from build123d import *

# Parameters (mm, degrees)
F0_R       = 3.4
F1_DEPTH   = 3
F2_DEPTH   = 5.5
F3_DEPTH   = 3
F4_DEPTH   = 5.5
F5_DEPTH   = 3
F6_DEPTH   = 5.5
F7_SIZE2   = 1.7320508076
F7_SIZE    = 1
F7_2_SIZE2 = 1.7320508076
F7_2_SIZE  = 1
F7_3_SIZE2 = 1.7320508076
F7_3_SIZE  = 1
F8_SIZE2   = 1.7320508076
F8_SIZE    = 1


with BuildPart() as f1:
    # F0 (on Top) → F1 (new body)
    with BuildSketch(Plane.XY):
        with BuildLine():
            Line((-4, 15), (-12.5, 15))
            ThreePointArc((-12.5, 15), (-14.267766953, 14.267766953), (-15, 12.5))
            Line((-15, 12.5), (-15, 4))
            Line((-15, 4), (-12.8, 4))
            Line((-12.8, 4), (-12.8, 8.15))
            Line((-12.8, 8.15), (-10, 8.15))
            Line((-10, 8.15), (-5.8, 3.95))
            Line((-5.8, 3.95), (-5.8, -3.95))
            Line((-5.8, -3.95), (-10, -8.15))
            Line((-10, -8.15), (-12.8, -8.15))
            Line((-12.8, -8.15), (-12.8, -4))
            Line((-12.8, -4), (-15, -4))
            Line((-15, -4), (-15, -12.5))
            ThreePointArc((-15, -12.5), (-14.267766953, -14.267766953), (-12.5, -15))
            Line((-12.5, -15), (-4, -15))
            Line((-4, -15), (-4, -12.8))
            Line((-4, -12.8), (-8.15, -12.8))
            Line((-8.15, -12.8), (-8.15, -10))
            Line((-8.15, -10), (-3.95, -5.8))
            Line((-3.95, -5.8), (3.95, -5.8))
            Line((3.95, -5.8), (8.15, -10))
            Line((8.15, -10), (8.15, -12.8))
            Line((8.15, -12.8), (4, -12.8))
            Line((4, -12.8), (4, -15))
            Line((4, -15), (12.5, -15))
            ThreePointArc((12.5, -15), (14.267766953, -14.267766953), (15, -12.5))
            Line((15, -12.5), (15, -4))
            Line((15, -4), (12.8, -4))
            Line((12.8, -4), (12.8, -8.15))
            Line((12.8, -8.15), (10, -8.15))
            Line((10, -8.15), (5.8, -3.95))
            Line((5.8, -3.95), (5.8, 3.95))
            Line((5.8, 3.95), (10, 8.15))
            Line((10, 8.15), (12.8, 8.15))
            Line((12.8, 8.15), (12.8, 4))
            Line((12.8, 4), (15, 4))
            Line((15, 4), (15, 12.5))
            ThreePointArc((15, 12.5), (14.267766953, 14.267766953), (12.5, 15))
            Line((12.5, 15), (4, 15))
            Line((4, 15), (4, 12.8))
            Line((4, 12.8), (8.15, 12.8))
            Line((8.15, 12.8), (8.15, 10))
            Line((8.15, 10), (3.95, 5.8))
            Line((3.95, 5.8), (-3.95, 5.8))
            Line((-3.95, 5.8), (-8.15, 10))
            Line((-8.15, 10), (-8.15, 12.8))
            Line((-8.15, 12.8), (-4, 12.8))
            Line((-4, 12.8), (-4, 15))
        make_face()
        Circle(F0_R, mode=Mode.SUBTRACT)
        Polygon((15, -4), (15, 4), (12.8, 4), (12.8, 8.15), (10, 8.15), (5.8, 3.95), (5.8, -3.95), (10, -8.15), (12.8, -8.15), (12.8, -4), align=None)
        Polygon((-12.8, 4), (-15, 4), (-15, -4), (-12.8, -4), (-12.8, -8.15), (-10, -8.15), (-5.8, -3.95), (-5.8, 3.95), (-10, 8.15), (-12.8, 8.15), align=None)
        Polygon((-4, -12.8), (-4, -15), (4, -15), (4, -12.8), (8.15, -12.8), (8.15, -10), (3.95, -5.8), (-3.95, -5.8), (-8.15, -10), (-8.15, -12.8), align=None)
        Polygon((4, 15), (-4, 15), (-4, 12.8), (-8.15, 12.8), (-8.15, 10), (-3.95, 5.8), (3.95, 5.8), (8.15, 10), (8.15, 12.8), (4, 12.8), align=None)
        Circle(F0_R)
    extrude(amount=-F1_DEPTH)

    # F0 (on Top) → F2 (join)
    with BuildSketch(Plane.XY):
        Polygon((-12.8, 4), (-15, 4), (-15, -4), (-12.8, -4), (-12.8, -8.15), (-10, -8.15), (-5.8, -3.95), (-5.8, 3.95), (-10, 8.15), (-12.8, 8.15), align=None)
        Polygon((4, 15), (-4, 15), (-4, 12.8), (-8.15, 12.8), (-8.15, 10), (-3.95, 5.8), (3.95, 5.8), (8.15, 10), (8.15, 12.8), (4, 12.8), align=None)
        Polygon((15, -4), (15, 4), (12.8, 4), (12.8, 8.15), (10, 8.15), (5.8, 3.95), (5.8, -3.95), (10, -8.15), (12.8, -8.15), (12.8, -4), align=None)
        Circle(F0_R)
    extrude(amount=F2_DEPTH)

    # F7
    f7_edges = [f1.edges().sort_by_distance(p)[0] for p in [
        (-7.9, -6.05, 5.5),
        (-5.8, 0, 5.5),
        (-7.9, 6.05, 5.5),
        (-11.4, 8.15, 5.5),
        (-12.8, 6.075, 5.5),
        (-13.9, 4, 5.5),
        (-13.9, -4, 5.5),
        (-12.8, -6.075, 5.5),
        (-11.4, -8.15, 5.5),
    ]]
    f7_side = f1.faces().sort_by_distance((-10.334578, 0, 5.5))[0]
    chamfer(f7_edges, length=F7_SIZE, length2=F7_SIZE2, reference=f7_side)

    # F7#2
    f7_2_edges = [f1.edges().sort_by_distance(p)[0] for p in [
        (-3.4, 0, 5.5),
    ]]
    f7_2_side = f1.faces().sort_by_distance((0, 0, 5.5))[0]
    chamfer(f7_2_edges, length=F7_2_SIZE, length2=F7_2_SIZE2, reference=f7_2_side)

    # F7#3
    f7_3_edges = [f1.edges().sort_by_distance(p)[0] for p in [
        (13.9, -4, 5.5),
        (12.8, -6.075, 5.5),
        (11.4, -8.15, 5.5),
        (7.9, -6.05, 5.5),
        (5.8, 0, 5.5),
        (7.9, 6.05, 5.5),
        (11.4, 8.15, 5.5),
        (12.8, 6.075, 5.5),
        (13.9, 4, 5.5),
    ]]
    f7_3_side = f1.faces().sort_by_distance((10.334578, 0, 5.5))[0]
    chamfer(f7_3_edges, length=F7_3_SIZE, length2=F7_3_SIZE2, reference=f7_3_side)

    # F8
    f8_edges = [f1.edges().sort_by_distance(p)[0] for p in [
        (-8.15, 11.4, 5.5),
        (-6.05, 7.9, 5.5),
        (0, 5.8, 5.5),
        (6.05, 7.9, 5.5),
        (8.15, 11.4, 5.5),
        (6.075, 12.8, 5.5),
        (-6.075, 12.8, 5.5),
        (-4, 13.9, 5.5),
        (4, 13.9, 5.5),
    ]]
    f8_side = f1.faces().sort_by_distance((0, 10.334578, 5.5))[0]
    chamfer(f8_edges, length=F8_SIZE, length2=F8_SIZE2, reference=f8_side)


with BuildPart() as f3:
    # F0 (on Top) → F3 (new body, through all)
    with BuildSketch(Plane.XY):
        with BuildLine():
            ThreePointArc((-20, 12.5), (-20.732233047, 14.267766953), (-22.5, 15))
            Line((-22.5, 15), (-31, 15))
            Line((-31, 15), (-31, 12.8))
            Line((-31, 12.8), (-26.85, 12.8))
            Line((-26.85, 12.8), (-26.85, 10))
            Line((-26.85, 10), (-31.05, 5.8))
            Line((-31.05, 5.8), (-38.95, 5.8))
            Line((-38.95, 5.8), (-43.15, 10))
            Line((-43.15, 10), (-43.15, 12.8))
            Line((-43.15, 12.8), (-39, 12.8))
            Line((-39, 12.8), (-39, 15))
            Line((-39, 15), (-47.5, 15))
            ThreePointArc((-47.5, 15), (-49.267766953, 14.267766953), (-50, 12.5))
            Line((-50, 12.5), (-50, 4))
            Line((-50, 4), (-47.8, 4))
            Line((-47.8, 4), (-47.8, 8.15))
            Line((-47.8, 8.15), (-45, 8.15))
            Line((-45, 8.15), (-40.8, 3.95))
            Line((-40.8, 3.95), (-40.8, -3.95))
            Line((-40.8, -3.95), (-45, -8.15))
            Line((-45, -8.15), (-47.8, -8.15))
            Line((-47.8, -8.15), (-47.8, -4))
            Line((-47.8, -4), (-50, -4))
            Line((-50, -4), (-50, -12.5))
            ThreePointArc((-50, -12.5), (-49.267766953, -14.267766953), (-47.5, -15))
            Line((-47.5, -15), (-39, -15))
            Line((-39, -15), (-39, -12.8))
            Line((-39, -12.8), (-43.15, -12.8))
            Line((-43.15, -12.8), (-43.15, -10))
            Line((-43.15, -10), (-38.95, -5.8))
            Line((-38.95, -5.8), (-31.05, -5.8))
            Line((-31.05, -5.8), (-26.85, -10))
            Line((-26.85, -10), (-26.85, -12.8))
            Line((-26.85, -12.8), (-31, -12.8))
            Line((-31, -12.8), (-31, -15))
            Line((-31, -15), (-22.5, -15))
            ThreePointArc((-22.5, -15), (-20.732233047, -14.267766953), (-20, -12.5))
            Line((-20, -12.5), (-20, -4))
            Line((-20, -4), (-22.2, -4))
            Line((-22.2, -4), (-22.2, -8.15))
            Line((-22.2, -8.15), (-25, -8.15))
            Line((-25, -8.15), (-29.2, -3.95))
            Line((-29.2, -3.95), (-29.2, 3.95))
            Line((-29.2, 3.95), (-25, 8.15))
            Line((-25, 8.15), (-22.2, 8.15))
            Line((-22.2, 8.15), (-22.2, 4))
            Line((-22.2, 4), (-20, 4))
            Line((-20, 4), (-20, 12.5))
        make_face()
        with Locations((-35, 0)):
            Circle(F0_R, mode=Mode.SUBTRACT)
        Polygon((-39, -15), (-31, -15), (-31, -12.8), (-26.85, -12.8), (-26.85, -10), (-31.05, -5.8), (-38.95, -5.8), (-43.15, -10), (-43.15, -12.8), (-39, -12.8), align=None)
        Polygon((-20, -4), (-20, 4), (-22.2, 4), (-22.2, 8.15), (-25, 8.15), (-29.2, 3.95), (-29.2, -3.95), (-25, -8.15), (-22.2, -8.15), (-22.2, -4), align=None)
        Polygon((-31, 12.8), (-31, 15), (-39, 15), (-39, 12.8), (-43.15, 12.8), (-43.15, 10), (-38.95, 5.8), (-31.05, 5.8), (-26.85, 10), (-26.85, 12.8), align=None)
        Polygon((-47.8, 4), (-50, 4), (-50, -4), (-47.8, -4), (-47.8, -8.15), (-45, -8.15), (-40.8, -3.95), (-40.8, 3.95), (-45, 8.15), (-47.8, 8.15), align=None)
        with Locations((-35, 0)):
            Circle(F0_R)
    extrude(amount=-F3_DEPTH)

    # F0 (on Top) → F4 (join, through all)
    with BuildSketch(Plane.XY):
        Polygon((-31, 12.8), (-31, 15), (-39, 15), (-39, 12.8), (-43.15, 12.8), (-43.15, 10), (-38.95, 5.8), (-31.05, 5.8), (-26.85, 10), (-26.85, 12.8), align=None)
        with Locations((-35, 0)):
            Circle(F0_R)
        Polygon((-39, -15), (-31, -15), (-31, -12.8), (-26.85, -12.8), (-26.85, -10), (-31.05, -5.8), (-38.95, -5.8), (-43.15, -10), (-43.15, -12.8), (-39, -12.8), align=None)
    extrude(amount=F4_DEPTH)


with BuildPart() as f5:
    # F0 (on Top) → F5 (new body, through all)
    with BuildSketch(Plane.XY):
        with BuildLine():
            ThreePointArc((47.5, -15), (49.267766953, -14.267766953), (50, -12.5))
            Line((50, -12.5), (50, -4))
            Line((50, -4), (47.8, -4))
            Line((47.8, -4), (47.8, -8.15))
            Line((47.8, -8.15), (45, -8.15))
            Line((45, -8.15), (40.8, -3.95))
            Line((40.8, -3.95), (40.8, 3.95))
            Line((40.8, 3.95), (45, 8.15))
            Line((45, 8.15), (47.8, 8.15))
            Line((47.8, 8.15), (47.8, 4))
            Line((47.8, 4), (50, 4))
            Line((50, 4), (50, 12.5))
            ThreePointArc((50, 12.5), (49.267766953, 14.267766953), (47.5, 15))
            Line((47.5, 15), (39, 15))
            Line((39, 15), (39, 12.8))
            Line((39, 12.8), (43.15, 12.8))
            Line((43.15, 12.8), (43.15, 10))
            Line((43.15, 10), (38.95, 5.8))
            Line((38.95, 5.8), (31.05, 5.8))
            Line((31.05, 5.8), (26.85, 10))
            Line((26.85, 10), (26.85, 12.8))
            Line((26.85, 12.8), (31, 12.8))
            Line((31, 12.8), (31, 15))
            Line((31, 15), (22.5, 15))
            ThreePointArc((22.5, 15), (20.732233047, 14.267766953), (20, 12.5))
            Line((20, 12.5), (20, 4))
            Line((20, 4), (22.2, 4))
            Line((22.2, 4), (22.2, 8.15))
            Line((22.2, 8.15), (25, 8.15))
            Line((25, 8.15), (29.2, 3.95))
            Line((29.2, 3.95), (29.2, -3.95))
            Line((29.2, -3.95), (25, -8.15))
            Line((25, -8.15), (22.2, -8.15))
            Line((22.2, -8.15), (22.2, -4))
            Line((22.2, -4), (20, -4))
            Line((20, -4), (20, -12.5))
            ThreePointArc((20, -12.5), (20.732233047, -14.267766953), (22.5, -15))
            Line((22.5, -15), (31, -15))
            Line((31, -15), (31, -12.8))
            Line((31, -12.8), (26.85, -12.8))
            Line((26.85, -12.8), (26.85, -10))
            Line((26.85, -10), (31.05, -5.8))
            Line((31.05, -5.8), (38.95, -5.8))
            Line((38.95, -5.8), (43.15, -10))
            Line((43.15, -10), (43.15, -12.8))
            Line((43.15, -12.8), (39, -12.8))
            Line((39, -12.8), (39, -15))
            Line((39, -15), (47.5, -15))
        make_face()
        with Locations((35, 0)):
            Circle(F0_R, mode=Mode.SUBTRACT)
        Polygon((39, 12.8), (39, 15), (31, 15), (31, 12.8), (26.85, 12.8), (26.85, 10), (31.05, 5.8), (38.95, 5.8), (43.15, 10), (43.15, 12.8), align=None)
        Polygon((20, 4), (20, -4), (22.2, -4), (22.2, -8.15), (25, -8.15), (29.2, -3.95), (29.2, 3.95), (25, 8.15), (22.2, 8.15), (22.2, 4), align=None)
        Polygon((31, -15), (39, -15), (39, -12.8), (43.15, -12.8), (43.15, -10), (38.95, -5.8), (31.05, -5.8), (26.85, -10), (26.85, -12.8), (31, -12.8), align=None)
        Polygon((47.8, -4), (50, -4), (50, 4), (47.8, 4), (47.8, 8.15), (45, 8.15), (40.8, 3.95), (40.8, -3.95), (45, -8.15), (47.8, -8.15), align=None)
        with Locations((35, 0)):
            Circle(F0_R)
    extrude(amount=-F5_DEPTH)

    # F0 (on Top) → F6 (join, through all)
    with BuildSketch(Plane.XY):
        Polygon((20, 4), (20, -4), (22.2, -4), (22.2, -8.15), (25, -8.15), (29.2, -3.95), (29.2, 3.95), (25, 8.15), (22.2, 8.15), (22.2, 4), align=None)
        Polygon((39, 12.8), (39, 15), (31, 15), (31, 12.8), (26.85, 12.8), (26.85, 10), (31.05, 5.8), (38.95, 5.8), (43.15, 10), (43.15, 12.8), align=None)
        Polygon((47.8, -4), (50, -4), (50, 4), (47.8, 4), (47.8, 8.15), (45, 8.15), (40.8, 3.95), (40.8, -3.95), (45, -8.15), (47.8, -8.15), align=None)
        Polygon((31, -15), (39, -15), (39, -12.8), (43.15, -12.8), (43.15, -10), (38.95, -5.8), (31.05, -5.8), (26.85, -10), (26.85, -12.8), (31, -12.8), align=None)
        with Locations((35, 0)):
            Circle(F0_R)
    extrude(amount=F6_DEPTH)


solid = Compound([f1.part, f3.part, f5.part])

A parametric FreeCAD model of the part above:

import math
import FreeCAD as App
import Part
import Sketcher
Q = App.Units.Quantity


def edges_at(feature, points):
    """Names of the edges that pass closest to the given points."""
    edges = feature.Shape.Edges
    near = lambda p: min(range(len(edges)), key=lambda i: edges[i].distToShape(Part.Vertex(*p))[0])
    return sorted({f"Edge{near(p) + 1}" for p in points})


def add_polygon(sketch, points):
    """Adds a closed chain of lines whose ends are joined by coincident constraints."""
    first, n = sketch.GeometryCount, len(points)
    for a, b in zip(points, points[1:] + points[:1]):
        sketch.addGeometry(Part.LineSegment(App.Vector(*a, 0), App.Vector(*b, 0)), False)
    for i in range(n):
        sketch.addConstraint(Sketcher.Constraint("Coincident", first + i, 2, first + (i + 1) % n, 1))

doc = App.newDocument("Part")
params = doc.addObject("Spreadsheet::Sheet", "Params")
for row, (alias, value) in enumerate([
    ("sketch1_radius", "2.5 mm"),
    ("sketch1_width", "25 mm"),
    ("pad1_length", "3 mm"),
    ("sketch2_diameter", "6.8 mm"),
    ("sketch2_width", "8 mm"),
    ("sketch2_width2", "2.2 mm"),
    ("sketch2_width3", "2.8 mm"),
    ("sketch2_width4", "7.9 mm"),
    ("pad2_length", "5.5 mm"),
    ("chamfer_size", "1 mm"),
    ("chamfer_size2", "1.732051 mm"),
    ("chamfer2_size", "1 mm"),
    ("chamfer2_size2", "1.732051 mm"),
    ("chamfer3_size", "1 mm"),
    ("chamfer3_size2", "1.732051 mm"),
    ("chamfer4_size", "1 mm"),
    ("chamfer4_size2", "1.732051 mm"),
    ("sketch3_radius", "2.5 mm"),
    ("sketch3_width", "25 mm"),
    ("pad3_length", "3 mm"),
    ("sketch4_diameter", "6.8 mm"),
    ("sketch4_width", "8 mm"),
    ("sketch4_width2", "7.9 mm"),
    ("sketch4_height", "2.2 mm"),
    ("sketch4_height2", "2.8 mm"),
    ("pad4_length", "5.5 mm"),
    ("sketch5_radius", "2.5 mm"),
    ("sketch5_width", "25 mm"),
    ("pad5_length", "3 mm"),
    ("sketch6_diameter", "6.8 mm"),
    ("sketch6_width", "8 mm"),
    ("sketch6_width2", "2.2 mm"),
    ("sketch6_width3", "2.8 mm"),
    ("sketch6_width4", "7.9 mm"),
    ("pad6_length", "5.5 mm"),
], start=1):
    params.set(f"A{row}", alias)
    params.set(f"B{row}", "=" + value)
    params.setAlias(f"B{row}", alias)

body = doc.addObject("PartDesign::Body", "Body")

# Sketch on XY plane
sketch1 = body.newObject("Sketcher::SketchObject", "Sketch")
sketch1.AttachmentSupport = (doc.getObject("XY_Plane"), [""])
sketch1.MapMode = "FlatFace"
sketch1.addGeometry(Part.ArcOfCircle(Part.Circle(App.Vector(-12.5, 12.5, 0), App.Vector(0, 0, 1), 2.5), math.radians(90), math.radians(180)), False)
sketch1.addGeometry(Part.LineSegment(App.Vector(-15, 12.5, 0), App.Vector(-15, -12.5, 0)), False)
sketch1.addGeometry(Part.ArcOfCircle(Part.Circle(App.Vector(-12.5, -12.5, 0), App.Vector(0, 0, 1), 2.5), math.radians(180), math.radians(270)), False)
sketch1.addGeometry(Part.LineSegment(App.Vector(-12.5, -15, 0), App.Vector(12.5, -15, 0)), False)
sketch1.addGeometry(Part.ArcOfCircle(Part.Circle(App.Vector(12.5, -12.5, 0), App.Vector(0, 0, 1), 2.5), math.radians(-90), math.radians(0)), False)
sketch1.addGeometry(Part.LineSegment(App.Vector(15, -12.5, 0), App.Vector(15, 12.5, 0)), False)
sketch1.addGeometry(Part.ArcOfCircle(Part.Circle(App.Vector(12.5, 12.5, 0), App.Vector(0, 0, 1), 2.5), math.radians(0), math.radians(90)), False)
sketch1.addGeometry(Part.LineSegment(App.Vector(12.5, 15, 0), App.Vector(-12.5, 15, 0)), False)
sketch1.addConstraint(Sketcher.Constraint("Tangent", 0, 2, 1, 1))
sketch1.addConstraint(Sketcher.Constraint("Tangent", 1, 2, 2, 1))
sketch1.addConstraint(Sketcher.Constraint("Tangent", 2, 2, 3, 1))
sketch1.addConstraint(Sketcher.Constraint("Tangent", 3, 2, 4, 1))
sketch1.addConstraint(Sketcher.Constraint("Tangent", 4, 2, 5, 1))
sketch1.addConstraint(Sketcher.Constraint("Tangent", 5, 2, 6, 1))
sketch1.addConstraint(Sketcher.Constraint("Tangent", 6, 2, 7, 1))
sketch1.addConstraint(Sketcher.Constraint("Tangent", 7, 2, 0, 1))
sketch1.addConstraint(Sketcher.Constraint("Vertical", 1))
sketch1.addConstraint(Sketcher.Constraint("Horizontal", 3))
sketch1.addConstraint(Sketcher.Constraint("Vertical", 5))
sketch1.addConstraint(Sketcher.Constraint("Horizontal", 7))
sketch1.addConstraint(Sketcher.Constraint("Equal", 0, 2))
sketch1.addConstraint(Sketcher.Constraint("Equal", 2, 4))
sketch1.addConstraint(Sketcher.Constraint("Equal", 4, 6))
sketch1.addConstraint(Sketcher.Constraint("Symmetric", 0, 3, 4, 3, -1, 1))
sketch1.addConstraint(Sketcher.Constraint("Equal", 7, 1))
sketch1.addConstraint(Sketcher.Constraint("Radius", 0, Q("2.5 mm")))
sketch1.addConstraint(Sketcher.Constraint("DistanceX", 3, 1, 3, 2, Q("25 mm")))
sketch1.setExpression("Constraints[17]", "Params.sketch1_radius")
sketch1.setExpression("Constraints[18]", "Params.sketch1_width")
pad1 = body.newObject("PartDesign::Pad", "Pad")
pad1.Profile = sketch1
pad1.setExpression("Length", "Params.pad1_length")
pad1.Reversed = True

# Sketch on XY plane
sketch2 = body.newObject("Sketcher::SketchObject", "Sketch001")
sketch2.AttachmentSupport = (doc.getObject("XY_Plane"), [""])
sketch2.MapMode = "FlatFace"
add_polygon(sketch2, [(-12.8, 4), (-15, 4), (-15, -4), (-12.8, -4), (-12.8, -8.15), (-10, -8.15), (-5.8, -3.95), (-5.8, 3.95), (-10, 8.15), (-12.8, 8.15)])  # lines 0-9
add_polygon(sketch2, [(4, 15), (-4, 15), (-4, 12.8), (-8.15, 12.8), (-8.15, 10), (-3.95, 5.8), (3.95, 5.8), (8.15, 10), (8.15, 12.8), (4, 12.8)])  # lines 10-19
add_polygon(sketch2, [(15, -4), (15, 4), (12.8, 4), (12.8, 8.15), (10, 8.15), (5.8, 3.95), (5.8, -3.95), (10, -8.15), (12.8, -8.15), (12.8, -4)])  # lines 20-29
sketch2.addGeometry(Part.Circle(App.Vector(0, 0, 0), App.Vector(0, 0, 1), 3.4), False)  # 30
sketch2.addConstraint(Sketcher.Constraint("Horizontal", 0))
sketch2.addConstraint(Sketcher.Constraint("Vertical", 1))
sketch2.addConstraint(Sketcher.Constraint("Horizontal", 2))
sketch2.addConstraint(Sketcher.Constraint("Vertical", 3))
sketch2.addConstraint(Sketcher.Constraint("Horizontal", 4))
sketch2.addConstraint(Sketcher.Constraint("Vertical", 6))
sketch2.addConstraint(Sketcher.Constraint("Horizontal", 8))
sketch2.addConstraint(Sketcher.Constraint("Vertical", 9))
sketch2.addConstraint(Sketcher.Constraint("Horizontal", 10))
sketch2.addConstraint(Sketcher.Constraint("Vertical", 11))
sketch2.addConstraint(Sketcher.Constraint("Horizontal", 12))
sketch2.addConstraint(Sketcher.Constraint("Vertical", 13))
sketch2.addConstraint(Sketcher.Constraint("Horizontal", 15))
sketch2.addConstraint(Sketcher.Constraint("Vertical", 17))
sketch2.addConstraint(Sketcher.Constraint("Horizontal", 18))
sketch2.addConstraint(Sketcher.Constraint("Vertical", 19))
sketch2.addConstraint(Sketcher.Constraint("Vertical", 20))
sketch2.addConstraint(Sketcher.Constraint("Horizontal", 21))
sketch2.addConstraint(Sketcher.Constraint("Vertical", 22))
sketch2.addConstraint(Sketcher.Constraint("Horizontal", 23))
sketch2.addConstraint(Sketcher.Constraint("Vertical", 25))
sketch2.addConstraint(Sketcher.Constraint("Horizontal", 27))
sketch2.addConstraint(Sketcher.Constraint("Vertical", 28))
sketch2.addConstraint(Sketcher.Constraint("Horizontal", 29))
sketch2.addConstraint(Sketcher.Constraint("Coincident", 30, 3, -1, 1))
sketch2.addConstraint(Sketcher.Constraint("Symmetric", 1, 2, 20, 2, -1, 1))
sketch2.addConstraint(Sketcher.Constraint("Symmetric", 3, 2, 22, 2, -1, 1))
sketch2.addConstraint(Sketcher.Constraint("Symmetric", 5, 2, 24, 2, -1, 1))
sketch2.addConstraint(Sketcher.Constraint("Symmetric", 7, 2, 26, 2, -1, 1))
sketch2.addConstraint(Sketcher.Constraint("Symmetric", 9, 2, 28, 2, -1, 1))
sketch2.addConstraint(Sketcher.Constraint("Symmetric", 13, 2, 16, 2, -2))
sketch2.addConstraint(Sketcher.Constraint("Symmetric", 11, 2, 18, 2, -2))
sketch2.addConstraint(Sketcher.Constraint("Symmetric", 9, 2, 21, 2, -2))
sketch2.addConstraint(Sketcher.Constraint("Symmetric", 7, 2, 23, 2, -2))
sketch2.addConstraint(Sketcher.Constraint("Perpendicular", 5, 7))
sketch2.addConstraint(Sketcher.Constraint("Parallel", 7, 14))
sketch2.addConstraint(Sketcher.Constraint("Perpendicular", 14, 16))
sketch2.addConstraint(Sketcher.Constraint("Parallel", 16, 24))
sketch2.addConstraint(Sketcher.Constraint("Perpendicular", 24, 26))
sketch2.addConstraint(Sketcher.Constraint("Horizontal", 6, 2, 24, 2))
sketch2.addConstraint(Sketcher.Constraint("Equal", 10, 1))
sketch2.addConstraint(Sketcher.Constraint("Equal", 18, 3))
sketch2.addConstraint(Sketcher.Constraint("Equal", 15, 6))
sketch2.addConstraint(Sketcher.Constraint("Equal", 29, 11))
sketch2.addConstraint(Sketcher.Constraint("Equal", 27, 13))
sketch2.addConstraint(Sketcher.Constraint("Diameter", 30, Q("6.8 mm")))
sketch2.addConstraint(Sketcher.Constraint("DistanceX", 10, 2, 10, 1, Q("8 mm")))
sketch2.addConstraint(Sketcher.Constraint("DistanceX", 0, 2, 0, 1, Q("2.2 mm")))
sketch2.addConstraint(Sketcher.Constraint("DistanceX", 4, 1, 4, 2, Q("2.8 mm")))
sketch2.addConstraint(Sketcher.Constraint("DistanceX", 15, 1, 15, 2, Q("7.9 mm")))
sketch2.addConstraint(Sketcher.Constraint("DistanceX", 0, 2, -1, 1, Q("15 mm")))
sketch2.addConstraint(Sketcher.Constraint("DistanceY", -1, 1, 10, 2, Q("15 mm")))
sketch2.addConstraint(Sketcher.Constraint("DistanceX", 2, 2, 5, 2, Q("7 mm")))
sketch2.setExpression("Constraints[75]", "Params.sketch2_diameter")
sketch2.setExpression("Constraints[76]", "Params.sketch2_width")
sketch2.setExpression("Constraints[77]", "Params.sketch2_width2")
sketch2.setExpression("Constraints[78]", "Params.sketch2_width3")
sketch2.setExpression("Constraints[79]", "Params.sketch2_width4")
pad2 = body.newObject("PartDesign::Pad", "Pad001")
pad2.Profile = sketch2
pad2.setExpression("Length", "Params.pad2_length")
doc.recompute()

chamfer = body.newObject("PartDesign::Chamfer", "Chamfer")
chamfer.Base = (pad2, edges_at(pad2, [
    (-7.9, -6.05, 5.5),
    (-5.8, 0, 5.5),
    (-7.9, 6.05, 5.5),
    (-11.4, 8.15, 5.5),
    (-12.8, 6.075, 5.5),
    (-13.9, 4, 5.5),
    (-13.9, -4, 5.5),
    (-12.8, -6.075, 5.5),
    (-11.4, -8.15, 5.5),
]))
chamfer.ChamferType = "Two distances"
chamfer.setExpression("Size", "Params.chamfer_size")
chamfer.setExpression("Size2", "Params.chamfer_size2")
chamfer.FlipDirection = True
doc.recompute()

chamfer2 = body.newObject("PartDesign::Chamfer", "Chamfer001")
chamfer2.Base = (chamfer, edges_at(chamfer, [(-3.4, 0, 5.5)]))
chamfer2.ChamferType = "Two distances"
chamfer2.setExpression("Size", "Params.chamfer2_size")
chamfer2.setExpression("Size2", "Params.chamfer2_size2")
chamfer2.FlipDirection = True
doc.recompute()

chamfer3 = body.newObject("PartDesign::Chamfer", "Chamfer002")
chamfer3.Base = (chamfer2, edges_at(chamfer2, [
    (13.9, -4, 5.5),
    (12.8, -6.075, 5.5),
    (11.4, -8.15, 5.5),
    (7.9, -6.05, 5.5),
    (5.8, 0, 5.5),
    (7.9, 6.05, 5.5),
    (11.4, 8.15, 5.5),
    (12.8, 6.075, 5.5),
    (13.9, 4, 5.5),
]))
chamfer3.ChamferType = "Two distances"
chamfer3.setExpression("Size", "Params.chamfer3_size")
chamfer3.setExpression("Size2", "Params.chamfer3_size2")
chamfer3.FlipDirection = True
doc.recompute()

chamfer4 = body.newObject("PartDesign::Chamfer", "Chamfer003")
chamfer4.Base = (chamfer3, edges_at(chamfer3, [
    (-8.15, 11.4, 5.5),
    (-6.05, 7.9, 5.5),
    (0, 5.8, 5.5),
    (6.05, 7.9, 5.5),
    (8.15, 11.4, 5.5),
    (6.075, 12.8, 5.5),
    (-6.075, 12.8, 5.5),
    (-4, 13.9, 5.5),
    (4, 13.9, 5.5),
]))
chamfer4.ChamferType = "Two distances"
chamfer4.setExpression("Size", "Params.chamfer4_size")
chamfer4.setExpression("Size2", "Params.chamfer4_size2")
chamfer4.FlipDirection = True
body2 = doc.addObject("PartDesign::Body", "Body001")

# Sketch on XY plane
sketch3 = body2.newObject("Sketcher::SketchObject", "Sketch002")
sketch3.AttachmentSupport = (doc.getObject("XY_Plane001"), [""])
sketch3.MapMode = "FlatFace"
sketch3.addGeometry(Part.ArcOfCircle(Part.Circle(App.Vector(-22.5, 12.5, 0), App.Vector(0, 0, 1), 2.5), math.radians(0), math.radians(90)), False)
sketch3.addGeometry(Part.LineSegment(App.Vector(-22.5, 15, 0), App.Vector(-47.5, 15, 0)), False)
sketch3.addGeometry(Part.ArcOfCircle(Part.Circle(App.Vector(-47.5, 12.5, 0), App.Vector(0, 0, 1), 2.5), math.radians(90), math.radians(180)), False)
sketch3.addGeometry(Part.LineSegment(App.Vector(-50, 12.5, 0), App.Vector(-50, -12.5, 0)), False)
sketch3.addGeometry(Part.ArcOfCircle(Part.Circle(App.Vector(-47.5, -12.5, 0), App.Vector(0, 0, 1), 2.5), math.radians(180), math.radians(270)), False)
sketch3.addGeometry(Part.LineSegment(App.Vector(-47.5, -15, 0), App.Vector(-22.5, -15, 0)), False)
sketch3.addGeometry(Part.ArcOfCircle(Part.Circle(App.Vector(-22.5, -12.5, 0), App.Vector(0, 0, 1), 2.5), math.radians(-90), math.radians(0)), False)
sketch3.addGeometry(Part.LineSegment(App.Vector(-20, -12.5, 0), App.Vector(-20, 12.5, 0)), False)
sketch3.addConstraint(Sketcher.Constraint("Tangent", 0, 2, 1, 1))
sketch3.addConstraint(Sketcher.Constraint("Tangent", 1, 2, 2, 1))
sketch3.addConstraint(Sketcher.Constraint("Tangent", 2, 2, 3, 1))
sketch3.addConstraint(Sketcher.Constraint("Tangent", 3, 2, 4, 1))
sketch3.addConstraint(Sketcher.Constraint("Tangent", 4, 2, 5, 1))
sketch3.addConstraint(Sketcher.Constraint("Tangent", 5, 2, 6, 1))
sketch3.addConstraint(Sketcher.Constraint("Tangent", 6, 2, 7, 1))
sketch3.addConstraint(Sketcher.Constraint("Tangent", 7, 2, 0, 1))
sketch3.addConstraint(Sketcher.Constraint("Horizontal", 1))
sketch3.addConstraint(Sketcher.Constraint("Vertical", 3))
sketch3.addConstraint(Sketcher.Constraint("Horizontal", 5))
sketch3.addConstraint(Sketcher.Constraint("Vertical", 7))
sketch3.addConstraint(Sketcher.Constraint("Equal", 0, 2))
sketch3.addConstraint(Sketcher.Constraint("Equal", 2, 4))
sketch3.addConstraint(Sketcher.Constraint("Equal", 4, 6))
sketch3.addConstraint(Sketcher.Constraint("Equal", 5, 3))
sketch3.addConstraint(Sketcher.Constraint("Radius", 0, Q("2.5 mm")))
sketch3.addConstraint(Sketcher.Constraint("DistanceX", 1, 2, 1, 1, Q("25 mm")))
sketch3.addConstraint(Sketcher.Constraint("DistanceY", -1, 1, 0, 2, Q("15 mm")))
sketch3.addConstraint(Sketcher.Constraint("DistanceX", 2, 2, -1, 1, Q("50 mm")))
sketch3.setExpression("Constraints[16]", "Params.sketch3_radius")
sketch3.setExpression("Constraints[17]", "Params.sketch3_width")
pad3 = body2.newObject("PartDesign::Pad", "Pad002")
pad3.Profile = sketch3
pad3.setExpression("Length", "Params.pad3_length")
pad3.Reversed = True

# Sketch on XY plane
sketch4 = body2.newObject("Sketcher::SketchObject", "Sketch003")
sketch4.AttachmentSupport = (doc.getObject("XY_Plane001"), [""])
sketch4.MapMode = "FlatFace"
add_polygon(sketch4, [(-31, 12.8), (-31, 15), (-39, 15), (-39, 12.8), (-43.15, 12.8), (-43.15, 10), (-38.95, 5.8), (-31.05, 5.8), (-26.85, 10), (-26.85, 12.8)])  # lines 0-9
sketch4.addGeometry(Part.Circle(App.Vector(-35, 0, 0), App.Vector(0, 0, 1), 3.4), False)  # 10
add_polygon(sketch4, [(-39, -15), (-31, -15), (-31, -12.8), (-26.85, -12.8), (-26.85, -10), (-31.05, -5.8), (-38.95, -5.8), (-43.15, -10), (-43.15, -12.8), (-39, -12.8)])  # lines 11-20
sketch4.addConstraint(Sketcher.Constraint("Vertical", 0))
sketch4.addConstraint(Sketcher.Constraint("Horizontal", 1))
sketch4.addConstraint(Sketcher.Constraint("Vertical", 2))
sketch4.addConstraint(Sketcher.Constraint("Horizontal", 3))
sketch4.addConstraint(Sketcher.Constraint("Vertical", 4))
sketch4.addConstraint(Sketcher.Constraint("Horizontal", 6))
sketch4.addConstraint(Sketcher.Constraint("Vertical", 8))
sketch4.addConstraint(Sketcher.Constraint("Horizontal", 9))
sketch4.addConstraint(Sketcher.Constraint("Horizontal", 11))
sketch4.addConstraint(Sketcher.Constraint("Vertical", 12))
sketch4.addConstraint(Sketcher.Constraint("Horizontal", 13))
sketch4.addConstraint(Sketcher.Constraint("Vertical", 14))
sketch4.addConstraint(Sketcher.Constraint("Horizontal", 16))
sketch4.addConstraint(Sketcher.Constraint("Vertical", 18))
sketch4.addConstraint(Sketcher.Constraint("Horizontal", 19))
sketch4.addConstraint(Sketcher.Constraint("Vertical", 20))
sketch4.addConstraint(Sketcher.Constraint("Symmetric", 0, 2, 11, 2, -1))
sketch4.addConstraint(Sketcher.Constraint("Symmetric", 8, 2, 13, 2, -1))
sketch4.addConstraint(Sketcher.Constraint("Symmetric", 6, 2, 15, 2, -1))
sketch4.addConstraint(Sketcher.Constraint("Symmetric", 4, 2, 17, 2, -1))
sketch4.addConstraint(Sketcher.Constraint("Symmetric", 2, 2, 19, 2, -1))
sketch4.addConstraint(Sketcher.Constraint("PointOnObject", 10, 3, -1))
sketch4.addConstraint(Sketcher.Constraint("Perpendicular", 5, 7))
sketch4.addConstraint(Sketcher.Constraint("Perpendicular", 7, 15))
sketch4.addConstraint(Sketcher.Constraint("Perpendicular", 15, 17))
sketch4.addConstraint(Sketcher.Constraint("Horizontal", 4, 2, 7, 2))
sketch4.addConstraint(Sketcher.Constraint("Horizontal", 3, 2, 8, 2))
sketch4.addConstraint(Sketcher.Constraint("Horizontal", 14, 2, 17, 2))
sketch4.addConstraint(Sketcher.Constraint("Equal", 3, 9))
sketch4.addConstraint(Sketcher.Constraint("Diameter", 10, Q("6.8 mm")))
sketch4.addConstraint(Sketcher.Constraint("DistanceX", 1, 2, 1, 1, Q("8 mm")))
sketch4.addConstraint(Sketcher.Constraint("DistanceX", 6, 1, 6, 2, Q("7.9 mm")))
sketch4.addConstraint(Sketcher.Constraint("DistanceY", 0, 1, 0, 2, Q("2.2 mm")))
sketch4.addConstraint(Sketcher.Constraint("DistanceY", 4, 2, 4, 1, Q("2.8 mm")))
sketch4.addConstraint(Sketcher.Constraint("DistanceX", 10, 3, -1, 1, Q("35 mm")))
sketch4.addConstraint(Sketcher.Constraint("DistanceX", 0, 2, -1, 1, Q("31 mm")))
sketch4.addConstraint(Sketcher.Constraint("DistanceY", -1, 1, 0, 2, Q("15 mm")))
sketch4.addConstraint(Sketcher.Constraint("DistanceY", 5, 2, 2, 2, Q("7 mm")))
sketch4.setExpression("Constraints[49]", "Params.sketch4_diameter")
sketch4.setExpression("Constraints[50]", "Params.sketch4_width")
sketch4.setExpression("Constraints[51]", "Params.sketch4_width2")
sketch4.setExpression("Constraints[52]", "Params.sketch4_height")
sketch4.setExpression("Constraints[53]", "Params.sketch4_height2")
pad4 = body2.newObject("PartDesign::Pad", "Pad003")
pad4.Profile = sketch4
pad4.setExpression("Length", "Params.pad4_length")
body3 = doc.addObject("PartDesign::Body", "Body002")

# Sketch on XY plane
sketch5 = body3.newObject("Sketcher::SketchObject", "Sketch004")
sketch5.AttachmentSupport = (doc.getObject("XY_Plane002"), [""])
sketch5.MapMode = "FlatFace"
sketch5.addGeometry(Part.ArcOfCircle(Part.Circle(App.Vector(47.5, -12.5, 0), App.Vector(0, 0, 1), 2.5), math.radians(-90), math.radians(0)), False)
sketch5.addGeometry(Part.LineSegment(App.Vector(50, -12.5, 0), App.Vector(50, 12.5, 0)), False)
sketch5.addGeometry(Part.ArcOfCircle(Part.Circle(App.Vector(47.5, 12.5, 0), App.Vector(0, 0, 1), 2.5), math.radians(0), math.radians(90)), False)
sketch5.addGeometry(Part.LineSegment(App.Vector(47.5, 15, 0), App.Vector(22.5, 15, 0)), False)
sketch5.addGeometry(Part.ArcOfCircle(Part.Circle(App.Vector(22.5, 12.5, 0), App.Vector(0, 0, 1), 2.5), math.radians(90), math.radians(180)), False)
sketch5.addGeometry(Part.LineSegment(App.Vector(20, 12.5, 0), App.Vector(20, -12.5, 0)), False)
sketch5.addGeometry(Part.ArcOfCircle(Part.Circle(App.Vector(22.5, -12.5, 0), App.Vector(0, 0, 1), 2.5), math.radians(180), math.radians(270)), False)
sketch5.addGeometry(Part.LineSegment(App.Vector(22.5, -15, 0), App.Vector(47.5, -15, 0)), False)
sketch5.addConstraint(Sketcher.Constraint("Tangent", 0, 2, 1, 1))
sketch5.addConstraint(Sketcher.Constraint("Tangent", 1, 2, 2, 1))
sketch5.addConstraint(Sketcher.Constraint("Tangent", 2, 2, 3, 1))
sketch5.addConstraint(Sketcher.Constraint("Tangent", 3, 2, 4, 1))
sketch5.addConstraint(Sketcher.Constraint("Tangent", 4, 2, 5, 1))
sketch5.addConstraint(Sketcher.Constraint("Tangent", 5, 2, 6, 1))
sketch5.addConstraint(Sketcher.Constraint("Tangent", 6, 2, 7, 1))
sketch5.addConstraint(Sketcher.Constraint("Tangent", 7, 2, 0, 1))
sketch5.addConstraint(Sketcher.Constraint("Vertical", 1))
sketch5.addConstraint(Sketcher.Constraint("Horizontal", 3))
sketch5.addConstraint(Sketcher.Constraint("Vertical", 5))
sketch5.addConstraint(Sketcher.Constraint("Horizontal", 7))
sketch5.addConstraint(Sketcher.Constraint("Equal", 0, 2))
sketch5.addConstraint(Sketcher.Constraint("Equal", 2, 4))
sketch5.addConstraint(Sketcher.Constraint("Equal", 4, 6))
sketch5.addConstraint(Sketcher.Constraint("Equal", 7, 1))
sketch5.addConstraint(Sketcher.Constraint("Radius", 0, Q("2.5 mm")))
sketch5.addConstraint(Sketcher.Constraint("DistanceX", 3, 2, 3, 1, Q("25 mm")))
sketch5.addConstraint(Sketcher.Constraint("DistanceX", -1, 1, 0, 2, Q("50 mm")))
sketch5.addConstraint(Sketcher.Constraint("DistanceY", -1, 1, 2, 2, Q("15 mm")))
sketch5.setExpression("Constraints[16]", "Params.sketch5_radius")
sketch5.setExpression("Constraints[17]", "Params.sketch5_width")
pad5 = body3.newObject("PartDesign::Pad", "Pad004")
pad5.Profile = sketch5
pad5.setExpression("Length", "Params.pad5_length")
pad5.Reversed = True

# Sketch on XY plane
sketch6 = body3.newObject("Sketcher::SketchObject", "Sketch005")
sketch6.AttachmentSupport = (doc.getObject("XY_Plane002"), [""])
sketch6.MapMode = "FlatFace"
add_polygon(sketch6, [(20, 4), (20, -4), (22.2, -4), (22.2, -8.15), (25, -8.15), (29.2, -3.95), (29.2, 3.95), (25, 8.15), (22.2, 8.15), (22.2, 4)])  # lines 0-9
add_polygon(sketch6, [(39, 12.8), (39, 15), (31, 15), (31, 12.8), (26.85, 12.8), (26.85, 10), (31.05, 5.8), (38.95, 5.8), (43.15, 10), (43.15, 12.8)])  # lines 10-19
add_polygon(sketch6, [(47.8, -4), (50, -4), (50, 4), (47.8, 4), (47.8, 8.15), (45, 8.15), (40.8, 3.95), (40.8, -3.95), (45, -8.15), (47.8, -8.15)])  # lines 20-29
add_polygon(sketch6, [(31, -15), (39, -15), (39, -12.8), (43.15, -12.8), (43.15, -10), (38.95, -5.8), (31.05, -5.8), (26.85, -10), (26.85, -12.8), (31, -12.8)])  # lines 30-39
sketch6.addGeometry(Part.Circle(App.Vector(35, 0, 0), App.Vector(0, 0, 1), 3.4), False)  # 40
sketch6.addConstraint(Sketcher.Constraint("Vertical", 0))
sketch6.addConstraint(Sketcher.Constraint("Horizontal", 1))
sketch6.addConstraint(Sketcher.Constraint("Vertical", 2))
sketch6.addConstraint(Sketcher.Constraint("Horizontal", 3))
sketch6.addConstraint(Sketcher.Constraint("Vertical", 5))
sketch6.addConstraint(Sketcher.Constraint("Horizontal", 7))
sketch6.addConstraint(Sketcher.Constraint("Vertical", 8))
sketch6.addConstraint(Sketcher.Constraint("Horizontal", 9))
sketch6.addConstraint(Sketcher.Constraint("Vertical", 10))
sketch6.addConstraint(Sketcher.Constraint("Horizontal", 11))
sketch6.addConstraint(Sketcher.Constraint("Vertical", 12))
sketch6.addConstraint(Sketcher.Constraint("Horizontal", 13))
sketch6.addConstraint(Sketcher.Constraint("Vertical", 14))
sketch6.addConstraint(Sketcher.Constraint("Horizontal", 16))
sketch6.addConstraint(Sketcher.Constraint("Vertical", 18))
sketch6.addConstraint(Sketcher.Constraint("Horizontal", 19))
sketch6.addConstraint(Sketcher.Constraint("Horizontal", 20))
sketch6.addConstraint(Sketcher.Constraint("Vertical", 21))
sketch6.addConstraint(Sketcher.Constraint("Horizontal", 22))
sketch6.addConstraint(Sketcher.Constraint("Vertical", 23))
sketch6.addConstraint(Sketcher.Constraint("Horizontal", 24))
sketch6.addConstraint(Sketcher.Constraint("Vertical", 26))
sketch6.addConstraint(Sketcher.Constraint("Horizontal", 28))
sketch6.addConstraint(Sketcher.Constraint("Vertical", 29))
sketch6.addConstraint(Sketcher.Constraint("Horizontal", 30))
sketch6.addConstraint(Sketcher.Constraint("Vertical", 31))
sketch6.addConstraint(Sketcher.Constraint("Horizontal", 32))
sketch6.addConstraint(Sketcher.Constraint("Vertical", 33))
sketch6.addConstraint(Sketcher.Constraint("Horizontal", 35))
sketch6.addConstraint(Sketcher.Constraint("Vertical", 37))
sketch6.addConstraint(Sketcher.Constraint("Horizontal", 38))
sketch6.addConstraint(Sketcher.Constraint("Vertical", 39))
sketch6.addConstraint(Sketcher.Constraint("Symmetric", 3, 2, 6, 2, -1))
sketch6.addConstraint(Sketcher.Constraint("Symmetric", 1, 2, 8, 2, -1))
sketch6.addConstraint(Sketcher.Constraint("Symmetric", 24, 2, 27, 2, -1))
sketch6.addConstraint(Sketcher.Constraint("Symmetric", 22, 2, 29, 2, -1))
sketch6.addConstraint(Sketcher.Constraint("Symmetric", 10, 2, 30, 2, -1))
sketch6.addConstraint(Sketcher.Constraint("Symmetric", 18, 2, 32, 2, -1))
sketch6.addConstraint(Sketcher.Constraint("Symmetric", 16, 2, 34, 2, -1))
sketch6.addConstraint(Sketcher.Constraint("Symmetric", 14, 2, 36, 2, -1))
sketch6.addConstraint(Sketcher.Constraint("Symmetric", 12, 2, 38, 2, -1))
sketch6.addConstraint(Sketcher.Constraint("PointOnObject", 40, 3, -1))
sketch6.addConstraint(Sketcher.Constraint("Perpendicular", 4, 6))
sketch6.addConstraint(Sketcher.Constraint("Parallel", 6, 15))
sketch6.addConstraint(Sketcher.Constraint("Perpendicular", 15, 17))
sketch6.addConstraint(Sketcher.Constraint("Parallel", 17, 25))
sketch6.addConstraint(Sketcher.Constraint("Perpendicular", 25, 27))
sketch6.addConstraint(Sketcher.Constraint("Parallel", 27, 34))
sketch6.addConstraint(Sketcher.Constraint("Perpendicular", 34, 36))
sketch6.addConstraint(Sketcher.Constraint("Horizontal", 14, 2, 17, 2))
sketch6.addConstraint(Sketcher.Constraint("Horizontal", 13, 2, 18, 2))
sketch6.addConstraint(Sketcher.Constraint("Horizontal", 1, 2, 20, 2))
sketch6.addConstraint(Sketcher.Constraint("Horizontal", 7, 2, 23, 2))
sketch6.addConstraint(Sketcher.Constraint("Horizontal", 5, 2, 25, 2))
sketch6.addConstraint(Sketcher.Constraint("Horizontal", 4, 2, 26, 2))
sketch6.addConstraint(Sketcher.Constraint("Equal", 13, 19))
sketch6.addConstraint(Sketcher.Constraint("Equal", 9, 20))
sketch6.addConstraint(Sketcher.Constraint("Equal", 7, 24))
sketch6.addConstraint(Sketcher.Constraint("Equal", 30, 0))
sketch6.addConstraint(Sketcher.Constraint("Equal", 38, 2))
sketch6.addConstraint(Sketcher.Constraint("Equal", 35, 5))
sketch6.addConstraint(Sketcher.Constraint("Equal", 22, 10))
sketch6.addConstraint(Sketcher.Constraint("Equal", 28, 14))
sketch6.addConstraint(Sketcher.Constraint("Diameter", 40, Q("6.8 mm")))
sketch6.addConstraint(Sketcher.Constraint("DistanceX", 11, 2, 11, 1, Q("8 mm")))
sketch6.addConstraint(Sketcher.Constraint("DistanceX", 1, 1, 1, 2, Q("2.2 mm")))
sketch6.addConstraint(Sketcher.Constraint("DistanceX", 3, 1, 3, 2, Q("2.8 mm")))
sketch6.addConstraint(Sketcher.Constraint("DistanceX", 16, 1, 16, 2, Q("7.9 mm")))
sketch6.addConstraint(Sketcher.Constraint("DistanceX", -1, 1, 40, 3, Q("35 mm")))
sketch6.addConstraint(Sketcher.Constraint("DistanceX", -1, 1, 0, 2, Q("20 mm")))
sketch6.addConstraint(Sketcher.Constraint("DistanceX", -1, 1, 10, 2, Q("39 mm")))
sketch6.addConstraint(Sketcher.Constraint("DistanceY", -1, 1, 10, 2, Q("15 mm")))
sketch6.addConstraint(Sketcher.Constraint("DistanceX", -1, 1, 20, 2, Q("50 mm")))
sketch6.addConstraint(Sketcher.Constraint("DistanceX", 1, 2, 4, 2, Q("7 mm")))
sketch6.setExpression("Constraints[103]", "Params.sketch6_diameter")
sketch6.setExpression("Constraints[104]", "Params.sketch6_width")
sketch6.setExpression("Constraints[105]", "Params.sketch6_width2")
sketch6.setExpression("Constraints[106]", "Params.sketch6_width3")
sketch6.setExpression("Constraints[107]", "Params.sketch6_width4")
pad6 = body3.newObject("PartDesign::Pad", "Pad005")
pad6.Profile = sketch6
pad6.setExpression("Length", "Params.pad6_length")

doc.recompute()
